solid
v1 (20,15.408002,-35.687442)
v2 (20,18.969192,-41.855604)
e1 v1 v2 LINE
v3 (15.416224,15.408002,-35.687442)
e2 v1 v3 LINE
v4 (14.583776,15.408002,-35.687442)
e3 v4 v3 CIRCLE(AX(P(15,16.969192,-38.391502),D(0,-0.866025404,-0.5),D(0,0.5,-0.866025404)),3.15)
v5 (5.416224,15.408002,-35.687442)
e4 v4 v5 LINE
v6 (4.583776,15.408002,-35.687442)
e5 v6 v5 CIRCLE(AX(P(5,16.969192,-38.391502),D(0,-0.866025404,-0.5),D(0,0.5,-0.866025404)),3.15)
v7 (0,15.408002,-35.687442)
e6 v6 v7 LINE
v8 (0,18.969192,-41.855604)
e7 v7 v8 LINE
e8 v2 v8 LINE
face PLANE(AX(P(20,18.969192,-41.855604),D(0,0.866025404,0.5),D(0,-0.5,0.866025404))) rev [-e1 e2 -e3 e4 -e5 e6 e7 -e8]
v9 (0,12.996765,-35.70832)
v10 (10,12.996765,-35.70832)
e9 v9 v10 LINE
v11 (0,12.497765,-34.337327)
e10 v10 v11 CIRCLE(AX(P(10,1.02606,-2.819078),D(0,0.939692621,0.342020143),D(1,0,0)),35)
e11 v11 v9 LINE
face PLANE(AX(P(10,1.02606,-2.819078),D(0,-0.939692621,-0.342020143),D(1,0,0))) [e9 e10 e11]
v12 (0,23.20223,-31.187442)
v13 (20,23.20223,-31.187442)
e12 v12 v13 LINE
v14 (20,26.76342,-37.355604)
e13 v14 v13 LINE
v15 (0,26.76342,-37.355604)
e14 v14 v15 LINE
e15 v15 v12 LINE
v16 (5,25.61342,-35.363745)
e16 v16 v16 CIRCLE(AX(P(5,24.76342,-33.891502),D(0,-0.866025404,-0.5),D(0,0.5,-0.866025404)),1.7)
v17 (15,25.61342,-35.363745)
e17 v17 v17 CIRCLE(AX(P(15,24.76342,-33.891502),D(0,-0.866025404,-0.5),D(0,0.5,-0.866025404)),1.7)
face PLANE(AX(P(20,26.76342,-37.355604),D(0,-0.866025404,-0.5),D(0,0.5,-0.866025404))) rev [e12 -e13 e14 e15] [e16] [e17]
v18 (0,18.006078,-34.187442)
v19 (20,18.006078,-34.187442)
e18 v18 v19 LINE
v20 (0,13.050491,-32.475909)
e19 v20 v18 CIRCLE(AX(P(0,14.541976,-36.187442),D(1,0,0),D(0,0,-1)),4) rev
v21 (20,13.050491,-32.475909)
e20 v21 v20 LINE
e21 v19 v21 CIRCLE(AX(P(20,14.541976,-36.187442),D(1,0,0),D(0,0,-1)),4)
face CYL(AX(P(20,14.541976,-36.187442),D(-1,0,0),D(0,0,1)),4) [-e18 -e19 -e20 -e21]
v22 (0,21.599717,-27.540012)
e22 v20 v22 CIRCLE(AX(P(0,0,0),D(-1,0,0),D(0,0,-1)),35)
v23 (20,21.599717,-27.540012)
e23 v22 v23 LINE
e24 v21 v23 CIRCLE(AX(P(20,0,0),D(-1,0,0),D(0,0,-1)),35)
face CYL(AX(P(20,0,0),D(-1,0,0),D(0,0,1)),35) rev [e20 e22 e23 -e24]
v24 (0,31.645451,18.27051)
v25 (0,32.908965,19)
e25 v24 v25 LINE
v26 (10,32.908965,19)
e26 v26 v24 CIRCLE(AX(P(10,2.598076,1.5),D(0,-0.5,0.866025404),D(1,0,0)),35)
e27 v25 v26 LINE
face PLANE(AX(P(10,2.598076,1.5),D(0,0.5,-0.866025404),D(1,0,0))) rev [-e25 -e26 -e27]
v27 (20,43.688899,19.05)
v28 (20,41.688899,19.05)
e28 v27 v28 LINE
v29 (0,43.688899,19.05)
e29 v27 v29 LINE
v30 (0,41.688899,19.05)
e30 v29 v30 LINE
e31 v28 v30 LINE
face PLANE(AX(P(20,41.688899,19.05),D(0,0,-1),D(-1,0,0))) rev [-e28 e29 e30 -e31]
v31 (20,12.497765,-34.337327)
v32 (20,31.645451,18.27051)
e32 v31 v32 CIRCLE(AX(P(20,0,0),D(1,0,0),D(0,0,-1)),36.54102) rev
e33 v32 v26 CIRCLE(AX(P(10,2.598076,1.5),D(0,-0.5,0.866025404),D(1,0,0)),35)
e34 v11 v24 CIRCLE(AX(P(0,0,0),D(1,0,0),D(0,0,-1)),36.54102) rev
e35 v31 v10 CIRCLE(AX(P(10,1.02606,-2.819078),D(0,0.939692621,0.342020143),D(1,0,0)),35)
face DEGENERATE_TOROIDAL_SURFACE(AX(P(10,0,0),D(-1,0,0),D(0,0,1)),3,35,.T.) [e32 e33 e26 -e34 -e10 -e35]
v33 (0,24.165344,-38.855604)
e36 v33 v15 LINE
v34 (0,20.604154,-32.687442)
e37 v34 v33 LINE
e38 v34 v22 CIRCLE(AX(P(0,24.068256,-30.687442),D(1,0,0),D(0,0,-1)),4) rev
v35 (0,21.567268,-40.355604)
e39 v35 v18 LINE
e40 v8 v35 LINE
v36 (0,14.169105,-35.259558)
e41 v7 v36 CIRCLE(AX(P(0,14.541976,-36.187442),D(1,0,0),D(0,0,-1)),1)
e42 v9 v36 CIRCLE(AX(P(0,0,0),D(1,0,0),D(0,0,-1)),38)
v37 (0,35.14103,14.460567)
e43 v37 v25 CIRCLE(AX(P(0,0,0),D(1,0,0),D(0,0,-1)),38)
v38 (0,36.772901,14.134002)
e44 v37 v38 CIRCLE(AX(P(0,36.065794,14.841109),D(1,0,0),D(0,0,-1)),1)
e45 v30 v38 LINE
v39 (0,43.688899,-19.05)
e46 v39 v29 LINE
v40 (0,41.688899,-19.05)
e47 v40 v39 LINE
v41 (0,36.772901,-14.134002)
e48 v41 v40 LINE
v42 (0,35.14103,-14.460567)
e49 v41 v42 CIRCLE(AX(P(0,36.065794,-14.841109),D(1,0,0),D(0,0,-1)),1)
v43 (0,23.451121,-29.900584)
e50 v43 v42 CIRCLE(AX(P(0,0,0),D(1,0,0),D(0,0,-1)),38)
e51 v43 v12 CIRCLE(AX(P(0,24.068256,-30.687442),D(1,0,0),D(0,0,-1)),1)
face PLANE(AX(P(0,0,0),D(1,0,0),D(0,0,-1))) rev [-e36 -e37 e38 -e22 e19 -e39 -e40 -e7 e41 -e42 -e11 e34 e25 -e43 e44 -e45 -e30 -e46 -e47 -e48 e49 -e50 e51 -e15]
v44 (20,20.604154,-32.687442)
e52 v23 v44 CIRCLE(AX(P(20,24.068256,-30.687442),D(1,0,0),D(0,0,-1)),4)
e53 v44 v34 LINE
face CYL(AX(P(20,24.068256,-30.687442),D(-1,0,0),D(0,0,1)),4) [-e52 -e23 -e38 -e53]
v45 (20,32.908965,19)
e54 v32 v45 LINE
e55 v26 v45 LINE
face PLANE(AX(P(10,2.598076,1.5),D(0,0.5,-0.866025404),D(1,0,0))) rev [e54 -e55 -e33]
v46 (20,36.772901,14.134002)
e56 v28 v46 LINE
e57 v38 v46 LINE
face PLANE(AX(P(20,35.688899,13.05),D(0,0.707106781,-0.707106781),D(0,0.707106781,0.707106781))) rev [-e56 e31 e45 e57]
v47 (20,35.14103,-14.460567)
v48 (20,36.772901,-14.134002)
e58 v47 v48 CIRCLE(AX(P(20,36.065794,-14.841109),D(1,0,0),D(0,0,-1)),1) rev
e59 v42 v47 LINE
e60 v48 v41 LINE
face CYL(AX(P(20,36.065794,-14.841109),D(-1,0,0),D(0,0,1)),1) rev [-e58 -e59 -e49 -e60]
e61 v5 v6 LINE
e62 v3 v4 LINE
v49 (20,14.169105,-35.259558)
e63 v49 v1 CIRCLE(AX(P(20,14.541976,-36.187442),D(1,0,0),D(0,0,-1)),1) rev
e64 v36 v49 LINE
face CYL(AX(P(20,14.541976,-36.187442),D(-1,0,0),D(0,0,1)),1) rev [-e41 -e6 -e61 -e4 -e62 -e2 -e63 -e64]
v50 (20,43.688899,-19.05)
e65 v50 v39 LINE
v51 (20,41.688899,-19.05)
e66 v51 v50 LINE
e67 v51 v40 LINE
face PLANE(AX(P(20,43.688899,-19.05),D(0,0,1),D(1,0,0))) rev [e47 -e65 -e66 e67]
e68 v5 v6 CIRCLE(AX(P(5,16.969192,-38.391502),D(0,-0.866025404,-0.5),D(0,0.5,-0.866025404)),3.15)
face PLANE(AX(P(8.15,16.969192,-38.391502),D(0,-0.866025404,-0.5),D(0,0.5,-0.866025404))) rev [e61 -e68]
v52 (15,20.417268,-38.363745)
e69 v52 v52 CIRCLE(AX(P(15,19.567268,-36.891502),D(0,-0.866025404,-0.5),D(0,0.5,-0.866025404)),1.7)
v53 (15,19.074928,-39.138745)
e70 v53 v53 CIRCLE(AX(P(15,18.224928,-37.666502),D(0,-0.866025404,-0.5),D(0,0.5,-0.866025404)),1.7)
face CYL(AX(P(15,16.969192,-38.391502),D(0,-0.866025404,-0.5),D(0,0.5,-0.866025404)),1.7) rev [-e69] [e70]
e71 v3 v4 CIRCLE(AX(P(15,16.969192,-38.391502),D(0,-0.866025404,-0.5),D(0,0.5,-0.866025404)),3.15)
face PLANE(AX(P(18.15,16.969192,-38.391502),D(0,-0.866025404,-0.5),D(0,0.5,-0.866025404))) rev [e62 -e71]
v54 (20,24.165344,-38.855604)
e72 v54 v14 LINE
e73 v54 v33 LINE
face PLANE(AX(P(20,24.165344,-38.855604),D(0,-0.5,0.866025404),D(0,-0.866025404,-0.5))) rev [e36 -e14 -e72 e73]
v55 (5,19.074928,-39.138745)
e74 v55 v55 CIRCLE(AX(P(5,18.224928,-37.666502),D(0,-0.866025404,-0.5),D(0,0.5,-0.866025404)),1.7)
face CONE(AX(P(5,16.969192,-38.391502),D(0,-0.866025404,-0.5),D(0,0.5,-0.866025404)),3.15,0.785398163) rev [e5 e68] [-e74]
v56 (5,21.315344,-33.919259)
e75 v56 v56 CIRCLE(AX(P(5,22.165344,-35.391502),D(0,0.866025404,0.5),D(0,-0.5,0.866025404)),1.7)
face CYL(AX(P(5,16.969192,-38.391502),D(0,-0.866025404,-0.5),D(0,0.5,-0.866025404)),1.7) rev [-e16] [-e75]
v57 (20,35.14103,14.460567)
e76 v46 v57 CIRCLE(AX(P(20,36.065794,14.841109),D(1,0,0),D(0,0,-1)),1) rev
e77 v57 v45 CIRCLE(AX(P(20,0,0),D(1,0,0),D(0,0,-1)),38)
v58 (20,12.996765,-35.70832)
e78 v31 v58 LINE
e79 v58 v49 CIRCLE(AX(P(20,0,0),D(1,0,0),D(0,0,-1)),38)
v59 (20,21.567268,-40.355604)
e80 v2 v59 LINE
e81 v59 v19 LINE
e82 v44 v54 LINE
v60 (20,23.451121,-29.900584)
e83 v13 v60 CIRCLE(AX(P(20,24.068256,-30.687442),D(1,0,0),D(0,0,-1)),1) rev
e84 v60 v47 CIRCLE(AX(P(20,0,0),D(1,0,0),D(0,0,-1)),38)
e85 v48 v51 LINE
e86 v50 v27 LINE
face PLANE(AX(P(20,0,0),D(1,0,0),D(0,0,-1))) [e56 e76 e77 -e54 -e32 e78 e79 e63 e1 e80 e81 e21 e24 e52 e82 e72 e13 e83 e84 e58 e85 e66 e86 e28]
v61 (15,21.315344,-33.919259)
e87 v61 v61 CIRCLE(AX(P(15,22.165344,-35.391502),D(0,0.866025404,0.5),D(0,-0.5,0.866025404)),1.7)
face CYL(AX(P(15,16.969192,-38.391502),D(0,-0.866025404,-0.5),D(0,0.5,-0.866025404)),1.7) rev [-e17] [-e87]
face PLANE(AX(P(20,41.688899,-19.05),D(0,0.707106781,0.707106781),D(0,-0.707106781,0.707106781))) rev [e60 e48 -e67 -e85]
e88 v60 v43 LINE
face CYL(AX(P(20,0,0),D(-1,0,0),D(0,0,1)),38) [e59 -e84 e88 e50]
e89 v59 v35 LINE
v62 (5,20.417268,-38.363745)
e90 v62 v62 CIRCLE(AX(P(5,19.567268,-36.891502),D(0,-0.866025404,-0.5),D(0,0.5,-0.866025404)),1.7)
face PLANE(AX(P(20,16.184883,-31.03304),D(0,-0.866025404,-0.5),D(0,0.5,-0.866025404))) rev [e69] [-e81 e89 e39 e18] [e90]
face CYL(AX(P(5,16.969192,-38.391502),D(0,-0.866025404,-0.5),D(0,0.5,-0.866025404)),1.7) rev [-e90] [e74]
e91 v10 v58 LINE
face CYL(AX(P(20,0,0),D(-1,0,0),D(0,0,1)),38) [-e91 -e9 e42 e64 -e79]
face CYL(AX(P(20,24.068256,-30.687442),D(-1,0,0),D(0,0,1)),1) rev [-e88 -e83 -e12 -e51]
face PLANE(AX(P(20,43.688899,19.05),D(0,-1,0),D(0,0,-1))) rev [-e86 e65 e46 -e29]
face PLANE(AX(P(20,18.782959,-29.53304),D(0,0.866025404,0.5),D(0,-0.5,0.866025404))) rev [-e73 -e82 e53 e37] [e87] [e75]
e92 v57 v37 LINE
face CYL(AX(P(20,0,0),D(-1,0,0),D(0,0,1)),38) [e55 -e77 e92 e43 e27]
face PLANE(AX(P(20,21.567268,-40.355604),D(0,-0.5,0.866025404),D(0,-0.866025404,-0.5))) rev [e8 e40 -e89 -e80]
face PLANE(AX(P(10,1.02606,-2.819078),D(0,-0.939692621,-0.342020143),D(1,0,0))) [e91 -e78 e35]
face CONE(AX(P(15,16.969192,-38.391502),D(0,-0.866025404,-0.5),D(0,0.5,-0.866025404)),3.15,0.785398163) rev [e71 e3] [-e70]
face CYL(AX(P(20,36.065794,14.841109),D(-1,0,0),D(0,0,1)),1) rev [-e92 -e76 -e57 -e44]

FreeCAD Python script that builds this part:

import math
import FreeCAD as App
import Part
import Sketcher
Q = App.Units.Quantity


def edges_at(feature, points):
    """Names of the edges that pass closest to the given points."""
    edges = feature.Shape.Edges
    near = lambda p: min(range(len(edges)), key=lambda i: edges[i].distToShape(Part.Vertex(*p))[0])
    return sorted({f"Edge{near(p) + 1}" for p in points})

doc = App.newDocument("Part")
body = doc.addObject("PartDesign::Body", "Body")

# Sketch on YZ plane
sketch1 = doc.addObject("Sketcher::SketchObject", "Sketch")
body.addObject(sketch1)
sketch1.AttachmentSupport = (doc.YZ_Plane, [""])
sketch1.MapMode = "FlatFace"
sketch1.addGeometry([
    Part.LineSegment(App.Vector(43.7, -19.1, 0), App.Vector(43.7, 19.1, 0)),  # 0
    Part.LineSegment(App.Vector(43.7, 19.1, 0), App.Vector(41.7, 19.1, 0)),  # 1
    Part.LineSegment(App.Vector(41.7, 19.1, 0), App.Vector(35.7, 13.1, 0)),  # 2
    Part.ArcOfCircle(Part.Circle(App.Vector(0, 0, 0), App.Vector(0, 0, 1), 38), math.radians(20), math.radians(293)),  # 3
    Part.LineSegment(App.Vector(15, -34.9, 0), App.Vector(19, -41.9, 0)),  # 4
    Part.LineSegment(App.Vector(19, -41.9, 0), App.Vector(21.6, -40.4, 0)),  # 5
    Part.LineSegment(App.Vector(21.6, -40.4, 0), App.Vector(16.2, -31, 0)),  # 6
    Part.ArcOfCircle(Part.Circle(App.Vector(0, 0, 0), App.Vector(0, 0, 1), 35), math.radians(-58), math.radians(298)),  # 7
    Part.LineSegment(App.Vector(18.8, -29.5, 0), App.Vector(24.2, -38.9, 0)),  # 8
    Part.LineSegment(App.Vector(24.2, -38.9, 0), App.Vector(26.8, -37.4, 0)),  # 9
    Part.LineSegment(App.Vector(26.8, -37.4, 0), App.Vector(22.8, -30.4, 0)),  # 10
    Part.ArcOfCircle(Part.Circle(App.Vector(0, 0, 0), App.Vector(0, 0, 1), 38), math.radians(-53), math.radians(-20)),  # 11
    Part.LineSegment(App.Vector(35.7, -13.1, 0), App.Vector(41.7, -19.1, 0)),  # 12
    Part.LineSegment(App.Vector(41.7, -19.1, 0), App.Vector(43.7, -19.1, 0)),  # 13
], False)
sketch1.addConstraint([
    Sketcher.Constraint("Coincident", 0, 2, 1, 1),
    Sketcher.Constraint("Coincident", 1, 2, 2, 1),
    Sketcher.Constraint("Coincident", 2, 2, 3, 1),
    Sketcher.Constraint("Coincident", 3, 2, 4, 1),
    Sketcher.Constraint("Coincident", 4, 2, 5, 1),
    Sketcher.Constraint("Coincident", 5, 2, 6, 1),
    Sketcher.Constraint("Coincident", 6, 2, 7, 2),
    Sketcher.Constraint("Coincident", 7, 1, 8, 1),
    Sketcher.Constraint("Coincident", 8, 2, 9, 1),
    Sketcher.Constraint("Coincident", 9, 2, 10, 1),
    Sketcher.Constraint("Coincident", 10, 2, 11, 1),
    Sketcher.Constraint("Coincident", 11, 2, 12, 1),
    Sketcher.Constraint("Coincident", 12, 2, 13, 1),
    Sketcher.Constraint("Coincident", 13, 2, 0, 1),
    Sketcher.Constraint("Vertical", 0),
    Sketcher.Constraint("Horizontal", 1),
    Sketcher.Constraint("Horizontal", 13),
    Sketcher.Constraint("Coincident", 3, 3, -1, 1),
    Sketcher.Constraint("Coincident", 7, 3, -1, 1),
    Sketcher.Constraint("Coincident", 11, 3, -1, 1),
    Sketcher.Constraint("Equal", 3, 11),
    Sketcher.Constraint("Symmetric", 1, 2, 12, 2, -1),
    Sketcher.Constraint("Perpendicular", 4, 5),
    Sketcher.Constraint("Perpendicular", 5, 6),
    Sketcher.Constraint("Parallel", 6, 8),
    Sketcher.Constraint("Perpendicular", 8, 9),
    Sketcher.Constraint("Perpendicular", 9, 10),
    Sketcher.Constraint("Perpendicular", 2, 12),
    Sketcher.Constraint("Vertical", 2, 2, 11, 2),
    Sketcher.Constraint("Equal", 6, 8),
    Sketcher.Constraint("Equal", 5, 9),
    Sketcher.Constraint("Equal", 4, 10),
    Sketcher.Constraint("Radius", 3, 38.0),
    Sketcher.Constraint("Radius", 7, 35.0),
    Sketcher.Constraint("DistanceX", 1, 2, 1, 1, 2.0),
    Sketcher.Constraint("Angle", 4, Q("-60 deg")),
    Sketcher.Constraint("Distance", 4, 8.0),
    Sketcher.Constraint("Distance", 5, 3.0),
    Sketcher.Constraint("DistanceY", 0, 1, 0, 2, 38.1),
    Sketcher.Constraint("DistanceX", 2, 2, 1, 2, 6.0),
    Sketcher.Constraint("DistanceY", 4, 2, 8, 2, 3.0),
])
pad1 = doc.addObject("PartDesign::Pad", "Pad")
body.addObject(pad1)
pad1.Profile = sketch1
pad1.Length = 20
doc.recompute()

fillet = doc.addObject("PartDesign::Fillet", "Fillet")
body.addObject(fillet)
fillet.Base = (pad1, edges_at(pad1, [
    (10, 35.689, 13.05),
    (10, 35.689, -13.05),
    (10, 22.763, -30.427),
    (10, 14.969, -34.927),
]))
fillet.Radius = 1
doc.recompute()

fillet2 = doc.addObject("PartDesign::Fillet", "Fillet001")
body.addObject(fillet2)
fillet2.Base = (fillet, edges_at(fillet, [(10, 18.783, -29.533), (10, 16.185, -31.033)]))
fillet2.Radius = 4

# Sketch on YZ plane
sketch2 = doc.addObject("Sketcher::SketchObject", "Sketch001")
body.addObject(sketch2)
sketch2.AttachmentSupport = (doc.YZ_Plane, [""])
sketch2.MapMode = "FlatFace"
sketch2.AttachmentOffset = App.Placement(App.Vector(0, 0, 15), App.Rotation())
sketch2.addGeometry([
    Part.LineSegment(App.Vector(70.1, -7.7, 0), App.Vector(17, -38.4, 0)),  # 0
    Part.LineSegment(App.Vector(17, -38.4, 0), App.Vector(18.5, -41.1, 0)),  # 1
    Part.LineSegment(App.Vector(18.5, -41.1, 0), App.Vector(19.1, -39.1, 0)),  # 2
    Part.LineSegment(App.Vector(19.1, -39.1, 0), App.Vector(70.9, -9.2, 0)),  # 3
    Part.LineSegment(App.Vector(70.9, -9.2, 0), App.Vector(70.1, -7.7, 0)),  # 4
], False)
sketch2.addGeometry(Part.LineSegment(App.Vector(17, -38.4, 0), App.Vector(70.1, -7.7, 0)), True)  # axis
sketch2.addConstraint([
    Sketcher.Constraint("Coincident", 0, 2, 1, 1),
    Sketcher.Constraint("Coincident", 1, 2, 2, 1),
    Sketcher.Constraint("Coincident", 2, 2, 3, 1),
    Sketcher.Constraint("Coincident", 3, 2, 4, 1),
    Sketcher.Constraint("Coincident", 4, 2, 0, 1),
    Sketcher.Constraint("Coincident", 5, 1, 0, 2),
    Sketcher.Constraint("Coincident", 5, 2, 4, 2),
    Sketcher.Constraint("Perpendicular", 0, 1),
    Sketcher.Constraint("Perpendicular", 1, 3),
    Sketcher.Constraint("Perpendicular", 3, 4),
    Sketcher.Constraint("Angle", 0, Q("-150 deg")),
    Sketcher.Constraint("Angle", 2, Q("75 deg")),
    Sketcher.Constraint("Distance", 4, 1.7),
    Sketcher.Constraint("Distance", 1, 3.15),
    Sketcher.Constraint("DistanceX", -1, 1, 0, 2, 16.969192),
    Sketcher.Constraint("DistanceY", 2, 2, 3, 2, 29.942848),
    Sketcher.Constraint("DistanceY", 0, 2, -1, 1, 38.391502),
])
groove = doc.addObject("PartDesign::Groove", "Groove")
body.addObject(groove)
groove.Profile = sketch2
groove.ReferenceAxis = (sketch2, ["Axis0"])
groove.Angle = 360
doc.recompute()

linearpattern = doc.addObject("PartDesign::LinearPattern", "LinearPattern")
body.addObject(linearpattern)
linearpattern.Originals = [groove]
linearpattern.Direction = (doc.X_Axis, [""])
linearpattern.Mode = "offset"
linearpattern.Offset = 10
linearpattern.Occurrences = 2
linearpattern.Reversed = True
body.Tip = linearpattern

# Sketch on XY plane
sketch3 = doc.addObject("Sketcher::SketchObject", "Sketch002")
body.addObject(sketch3)
sketch3.AttachmentSupport = (doc.XY_Plane, [""])
sketch3.MapMode = "FlatFace"
sketch3.addGeometry([
    Part.LineSegment(App.Vector(-8, -33, 0), App.Vector(-8, -46, 0)),
    Part.LineSegment(App.Vector(-8, -46, 0), App.Vector(28, -46, 0)),
    Part.LineSegment(App.Vector(28, -46, 0), App.Vector(28, -33, 0)),
    Part.ArcOfCircle(Part.Circle(App.Vector(10, -3, 0), App.Vector(0, 0, 1), 35), math.radians(-121), math.radians(-59)),
], False)
sketch3.addConstraint([
    Sketcher.Constraint("Coincident", 0, 2, 1, 1),
    Sketcher.Constraint("Coincident", 1, 2, 2, 1),
    Sketcher.Constraint("Coincident", 2, 2, 3, 2),
    Sketcher.Constraint("Coincident", 3, 1, 0, 1),
    Sketcher.Constraint("Vertical", 0),
    Sketcher.Constraint("Horizontal", 1),
    Sketcher.Constraint("Vertical", 2),
    Sketcher.Constraint("Radius", 3, 35.0),
    Sketcher.Constraint("DistanceX", -1, 1, 3, 3, 10.0),
    Sketcher.Constraint("DistanceY", 3, 3, -1, 1, 3.0),
    Sketcher.Constraint("DistanceY", 0, 2, -1, 1, 46.0),
    Sketcher.Constraint("DistanceX", -1, 1, 1, 2, 28.0),
    Sketcher.Constraint("DistanceX", 1, 1, 1, 2, 36.002699),
])
groove2 = doc.addObject("PartDesign::Groove", "Groove001")
body.addObject(groove2)
groove2.Profile = sketch3
groove2.ReferenceAxis = (sketch3, ["H_Axis"])
groove2.Angle = 110

# Sketch on XY plane
sketch4 = doc.addObject("Sketcher::SketchObject", "Sketch003")
body.addObject(sketch4)
sketch4.AttachmentSupport = (doc.XY_Plane, [""])
sketch4.MapMode = "FlatFace"
sketch4.addGeometry([
    Part.LineSegment(App.Vector(-8, -33, 0), App.Vector(-8, -46, 0)),
    Part.LineSegment(App.Vector(-8, -46, 0), App.Vector(28, -46, 0)),
    Part.LineSegment(App.Vector(28, -46, 0), App.Vector(28, -33, 0)),
    Part.ArcOfCircle(Part.Circle(App.Vector(10, -3, 0), App.Vector(0, 0, 1), 35), math.radians(-121), math.radians(-59)),
], False)
sketch4.addConstraint([
    Sketcher.Constraint("Coincident", 0, 2, 1, 1),
    Sketcher.Constraint("Coincident", 1, 2, 2, 1),
    Sketcher.Constraint("Coincident", 2, 2, 3, 2),
    Sketcher.Constraint("Coincident", 3, 1, 0, 1),
    Sketcher.Constraint("Vertical", 0),
    Sketcher.Constraint("Horizontal", 1),
    Sketcher.Constraint("Vertical", 2),
    Sketcher.Constraint("Radius", 3, 35.0),
    Sketcher.Constraint("DistanceX", -1, 1, 3, 3, 10.0),
    Sketcher.Constraint("DistanceY", 3, 3, -1, 1, 3.0),
    Sketcher.Constraint("DistanceY", 0, 2, -1, 1, 46.0),
    Sketcher.Constraint("DistanceX", -1, 1, 1, 2, 28.0),
    Sketcher.Constraint("DistanceX", 1, 1, 1, 2, 36.002699),
])
groove3 = doc.addObject("PartDesign::Groove", "Groove002")
body.addObject(groove3)
groove3.Profile = sketch4
groove3.ReferenceAxis = (sketch4, ["H_Axis"])
groove3.Angle = 150
groove3.Reversed = True

doc.recompute()
